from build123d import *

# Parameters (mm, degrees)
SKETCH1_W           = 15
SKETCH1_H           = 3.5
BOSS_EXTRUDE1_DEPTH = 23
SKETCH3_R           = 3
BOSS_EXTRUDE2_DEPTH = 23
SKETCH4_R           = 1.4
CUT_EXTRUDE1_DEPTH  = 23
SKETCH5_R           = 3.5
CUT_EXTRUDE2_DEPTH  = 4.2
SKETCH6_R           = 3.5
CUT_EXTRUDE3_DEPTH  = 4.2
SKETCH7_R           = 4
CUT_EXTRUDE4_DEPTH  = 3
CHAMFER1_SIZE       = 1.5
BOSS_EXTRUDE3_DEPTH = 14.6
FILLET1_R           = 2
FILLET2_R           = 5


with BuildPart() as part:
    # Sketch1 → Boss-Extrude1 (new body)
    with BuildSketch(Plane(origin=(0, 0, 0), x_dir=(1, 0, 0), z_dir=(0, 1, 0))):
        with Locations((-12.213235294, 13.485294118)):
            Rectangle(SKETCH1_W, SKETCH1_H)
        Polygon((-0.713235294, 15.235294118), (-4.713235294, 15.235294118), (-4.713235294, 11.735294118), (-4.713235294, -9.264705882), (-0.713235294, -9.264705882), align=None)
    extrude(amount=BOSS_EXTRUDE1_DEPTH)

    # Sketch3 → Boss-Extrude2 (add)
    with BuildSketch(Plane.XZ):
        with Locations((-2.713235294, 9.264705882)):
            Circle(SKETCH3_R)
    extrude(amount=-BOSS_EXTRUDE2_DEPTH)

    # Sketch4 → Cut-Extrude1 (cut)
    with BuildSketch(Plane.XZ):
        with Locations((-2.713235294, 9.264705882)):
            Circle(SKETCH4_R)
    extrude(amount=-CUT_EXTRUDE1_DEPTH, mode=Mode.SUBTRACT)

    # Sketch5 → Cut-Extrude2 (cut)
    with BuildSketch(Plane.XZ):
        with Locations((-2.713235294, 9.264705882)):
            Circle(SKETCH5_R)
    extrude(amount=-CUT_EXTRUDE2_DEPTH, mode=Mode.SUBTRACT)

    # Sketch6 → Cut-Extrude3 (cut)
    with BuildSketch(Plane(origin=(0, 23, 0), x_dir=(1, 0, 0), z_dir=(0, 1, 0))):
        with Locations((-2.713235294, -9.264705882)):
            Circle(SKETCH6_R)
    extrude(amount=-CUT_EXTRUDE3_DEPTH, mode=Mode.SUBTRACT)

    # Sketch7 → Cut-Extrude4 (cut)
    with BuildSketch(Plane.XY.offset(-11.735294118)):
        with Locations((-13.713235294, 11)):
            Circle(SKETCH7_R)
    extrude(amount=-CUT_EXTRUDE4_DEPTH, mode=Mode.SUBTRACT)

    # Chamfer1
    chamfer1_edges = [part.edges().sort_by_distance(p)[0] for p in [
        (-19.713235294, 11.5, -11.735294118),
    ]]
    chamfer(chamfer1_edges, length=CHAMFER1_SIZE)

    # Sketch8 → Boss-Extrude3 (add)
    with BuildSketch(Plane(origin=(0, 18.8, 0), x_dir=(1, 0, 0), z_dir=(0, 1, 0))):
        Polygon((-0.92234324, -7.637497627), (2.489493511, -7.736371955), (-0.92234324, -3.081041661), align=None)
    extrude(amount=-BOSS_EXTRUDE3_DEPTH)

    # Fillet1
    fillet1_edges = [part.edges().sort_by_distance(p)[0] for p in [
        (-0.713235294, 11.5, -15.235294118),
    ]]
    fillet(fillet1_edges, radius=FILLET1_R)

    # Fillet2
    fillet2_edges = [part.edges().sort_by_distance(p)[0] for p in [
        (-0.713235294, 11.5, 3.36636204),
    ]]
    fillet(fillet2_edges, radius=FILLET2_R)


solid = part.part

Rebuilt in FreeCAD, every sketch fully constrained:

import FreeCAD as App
import Part
import Sketcher
Q = App.Units.Quantity


def edges_at(feature, points):
    """Names of the edges that pass closest to the given points."""
    edges = feature.Shape.Edges
    near = lambda p: min(range(len(edges)), key=lambda i: edges[i].distToShape(Part.Vertex(*p))[0])
    return sorted({f"Edge{near(p) + 1}" for p in points})

doc = App.newDocument("Part")
body = doc.addObject("PartDesign::Body", "Body")

# Sketch on XZ plane
sketch1 = body.newObject("Sketcher::SketchObject", "Sketch")
sketch1.AttachmentSupport = (doc.getObject("XZ_Plane"), [""])
sketch1.MapMode = "FlatFace"
sketch1.addGeometry(Part.LineSegment(App.Vector(-19.7, -15.2, 0), App.Vector(-19.7, -11.7, 0)), False)
sketch1.addGeometry(Part.LineSegment(App.Vector(-19.7, -11.7, 0), App.Vector(-4.7, -11.7, 0)), False)
sketch1.addGeometry(Part.LineSegment(App.Vector(-4.7, -11.7, 0), App.Vector(-4.7, 9.3, 0)), False)
sketch1.addGeometry(Part.LineSegment(App.Vector(-4.7, 9.3, 0), App.Vector(-0.7, 9.3, 0)), False)
sketch1.addGeometry(Part.LineSegment(App.Vector(-0.7, 9.3, 0), App.Vector(-0.7, -15.2, 0)), False)
sketch1.addGeometry(Part.LineSegment(App.Vector(-0.7, -15.2, 0), App.Vector(-19.7, -15.2, 0)), False)
sketch1.addConstraint(Sketcher.Constraint("Coincident", 0, 2, 1, 1))
sketch1.addConstraint(Sketcher.Constraint("Coincident", 1, 2, 2, 1))
sketch1.addConstraint(Sketcher.Constraint("Coincident", 2, 2, 3, 1))
sketch1.addConstraint(Sketcher.Constraint("Coincident", 3, 2, 4, 1))
sketch1.addConstraint(Sketcher.Constraint("Coincident", 4, 2, 5, 1))
sketch1.addConstraint(Sketcher.Constraint("Coincident", 5, 2, 0, 1))
sketch1.addConstraint(Sketcher.Constraint("Vertical", 0))
sketch1.addConstraint(Sketcher.Constraint("Horizontal", 1))
sketch1.addConstraint(Sketcher.Constraint("Vertical", 2))
sketch1.addConstraint(Sketcher.Constraint("Horizontal", 3))
sketch1.addConstraint(Sketcher.Constraint("Vertical", 4))
sketch1.addConstraint(Sketcher.Constraint("Horizontal", 5))
sketch1.addConstraint(Sketcher.Constraint("DistanceX", 1, 1, 1, 2, Q("15 mm")))
sketch1.addConstraint(Sketcher.Constraint("DistanceX", 3, 1, 3, 2, Q("4 mm")))
sketch1.addConstraint(Sketcher.Constraint("DistanceY", 2, 1, 2, 2, Q("21 mm")))
sketch1.addConstraint(Sketcher.Constraint("DistanceY", 0, 1, 0, 2, Q("3.5 mm")))
sketch1.addConstraint(Sketcher.Constraint("DistanceX", 0, 2, -1, 1, Q("19.713235 mm")))
sketch1.addConstraint(Sketcher.Constraint("DistanceY", 0, 2, -1, 1, Q("11.735294 mm")))
pad1 = body.newObject("PartDesign::Pad", "Pad")
pad1.Profile = sketch1
pad1.Length = 23
pad1.Reversed = True

# Sketch on XZ plane
sketch2 = body.newObject("Sketcher::SketchObject", "Sketch001")
sketch2.AttachmentSupport = (doc.getObject("XZ_Plane"), [""])
sketch2.MapMode = "FlatFace"
sketch2.addGeometry(Part.Circle(App.Vector(-2.7, 9.3, 0), App.Vector(0, 0, 1), 3), False)
sketch2.addConstraint(Sketcher.Constraint("Diameter", 0, Q("6 mm")))
sketch2.addConstraint(Sketcher.Constraint("DistanceX", 0, 3, -1, 1, Q("2.713235 mm")))
sketch2.addConstraint(Sketcher.Constraint("DistanceY", -1, 1, 0, 3, Q("9.264706 mm")))
pad2 = body.newObject("PartDesign::Pad", "Pad001")
pad2.Profile = sketch2
pad2.Length = 23
pad2.Reversed = True

# Sketch on XZ plane
sketch3 = body.newObject("Sketcher::SketchObject", "Sketch002")
sketch3.AttachmentSupport = (doc.getObject("XZ_Plane"), [""])
sketch3.MapMode = "FlatFace"
sketch3.addGeometry(Part.Circle(App.Vector(-2.7, 9.3, 0), App.Vector(0, 0, 1), 1.4), False)
sketch3.addConstraint(Sketcher.Constraint("Diameter", 0, Q("2.8 mm")))
sketch3.addConstraint(Sketcher.Constraint("DistanceX", 0, 3, -1, 1, Q("2.713235 mm")))
sketch3.addConstraint(Sketcher.Constraint("DistanceY", -1, 1, 0, 3, Q("9.264706 mm")))
pocket1 = body.newObject("PartDesign::Pocket", "Pocket")
pocket1.Profile = sketch3
pocket1.Length = 23

# Sketch on XZ plane
sketch4 = body.newObject("Sketcher::SketchObject", "Sketch003")
sketch4.AttachmentSupport = (doc.getObject("XZ_Plane"), [""])
sketch4.MapMode = "FlatFace"
sketch4.addGeometry(Part.Circle(App.Vector(-2.7, 9.3, 0), App.Vector(0, 0, 1), 3.5), False)
sketch4.addConstraint(Sketcher.Constraint("Diameter", 0, Q("7 mm")))
sketch4.addConstraint(Sketcher.Constraint("DistanceX", 0, 3, -1, 1, Q("2.713235 mm")))
sketch4.addConstraint(Sketcher.Constraint("DistanceY", -1, 1, 0, 3, Q("9.264706 mm")))
pocket2 = body.newObject("PartDesign::Pocket", "Pocket001")
pocket2.Profile = sketch4
pocket2.Length = 4.2

# Sketch on XZ plane
sketch5 = body.newObject("Sketcher::SketchObject", "Sketch004")
sketch5.AttachmentSupport = (doc.getObject("XZ_Plane"), [""])
sketch5.MapMode = "FlatFace"
sketch5.AttachmentOffset = App.Placement(App.Vector(0, 0, -23), App.Rotation())
sketch5.addGeometry(Part.Circle(App.Vector(-2.7, 9.3, 0), App.Vector(0, 0, 1), 3.5), False)
sketch5.addConstraint(Sketcher.Constraint("Diameter", 0, Q("7 mm")))
sketch5.addConstraint(Sketcher.Constraint("DistanceX", 0, 3, -1, 1, Q("2.713235 mm")))
sketch5.addConstraint(Sketcher.Constraint("DistanceY", -1, 1, 0, 3, Q("9.264706 mm")))
pocket3 = body.newObject("PartDesign::Pocket", "Pocket002")
pocket3.Profile = sketch5
pocket3.Length = 4.2
pocket3.Reversed = True

# Sketch on XY plane
sketch6 = body.newObject("Sketcher::SketchObject", "Sketch005")
sketch6.AttachmentSupport = (doc.getObject("XY_Plane"), [""])
sketch6.MapMode = "FlatFace"
sketch6.AttachmentOffset = App.Placement(App.Vector(0, 0, -11.735294), App.Rotation())
sketch6.addGeometry(Part.Circle(App.Vector(-13.7, 11, 0), App.Vector(0, 0, 1), 4), False)
sketch6.addConstraint(Sketcher.Constraint("Diameter", 0, Q("8 mm")))
sketch6.addConstraint(Sketcher.Constraint("DistanceY", -1, 1, 0, 3, Q("11 mm")))
sketch6.addConstraint(Sketcher.Constraint("DistanceX", 0, 3, -1, 1, Q("13.713235 mm")))
pocket4 = body.newObject("PartDesign::Pocket", "Pocket003")
pocket4.Profile = sketch6
pocket4.Length = 3
doc.recompute()

chamfer = body.newObject("PartDesign::Chamfer", "Chamfer")
chamfer.Base = (pocket4, edges_at(pocket4, [(-19.713, 11.5, -11.735)]))
chamfer.Size = 1.5

# Sketch on XZ plane
sketch7 = body.newObject("Sketcher::SketchObject", "Sketch006")
sketch7.AttachmentSupport = (doc.getObject("XZ_Plane"), [""])
sketch7.MapMode = "FlatFace"
sketch7.AttachmentOffset = App.Placement(App.Vector(0, 0, -18.8), App.Rotation())
sketch7.addGeometry(Part.LineSegment(App.Vector(-0.9, 7.6, 0), App.Vector(2.5, 7.7, 0)), False)
sketch7.addGeometry(Part.LineSegment(App.Vector(2.5, 7.7, 0), App.Vector(-0.9, 3.1, 0)), False)
sketch7.addGeometry(Part.LineSegment(App.Vector(-0.9, 3.1, 0), App.Vector(-0.9, 7.6, 0)), False)
sketch7.addConstraint(Sketcher.Constraint("Coincident", 0, 2, 1, 1))
sketch7.addConstraint(Sketcher.Constraint("Coincident", 1, 2, 2, 1))
sketch7.addConstraint(Sketcher.Constraint("Coincident", 2, 2, 0, 1))
sketch7.addConstraint(Sketcher.Constraint("Vertical", 2))
sketch7.addConstraint(Sketcher.Constraint("Distance", 0, Q("3.413269 mm")))
sketch7.addConstraint(Sketcher.Constraint("Distance", 1, Q("5.771718 mm")))
sketch7.addConstraint(Sketcher.Constraint("DistanceY", 2, 1, 2, 2, Q("4.556456 mm")))
sketch7.addConstraint(Sketcher.Constraint("DistanceY", -1, 1, 0, 2, Q("7.736372 mm")))
sketch7.addConstraint(Sketcher.Constraint("DistanceX", -1, 1, 0, 2, Q("2.489494 mm")))
pad3 = body.newObject("PartDesign::Pad", "Pad002")
pad3.Profile = sketch7
pad3.Length = 14.6
doc.recompute()

fillet = body.newObject("PartDesign::Fillet", "Fillet")
fillet.Base = (pad3, edges_at(pad3, [(-0.713, 11.5, -15.235)]))
fillet.Radius = 2
doc.recompute()

fillet2 = body.newObject("PartDesign::Fillet", "Fillet001")
fillet2.Base = (fillet, edges_at(fillet, [(-0.713, 11.5, 3.366)]))
fillet2.Radius = 5

doc.recompute()
